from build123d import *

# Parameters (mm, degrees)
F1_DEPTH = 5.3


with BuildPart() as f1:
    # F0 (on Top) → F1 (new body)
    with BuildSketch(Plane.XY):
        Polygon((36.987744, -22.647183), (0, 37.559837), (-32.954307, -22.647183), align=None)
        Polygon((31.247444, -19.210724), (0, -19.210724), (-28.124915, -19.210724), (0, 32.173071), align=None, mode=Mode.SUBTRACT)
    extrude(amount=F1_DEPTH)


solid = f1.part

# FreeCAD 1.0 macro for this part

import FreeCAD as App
import Part
import Sketcher
from FreeCAD import Vector
Q = App.Units.Quantity


def add_polygon(sketch, points):
    """Adds a closed chain of lines whose ends are joined by coincident constraints."""
    first, n = sketch.GeometryCount, len(points)
    for a, b in zip(points, points[1:] + points[:1]):
        sketch.addGeometry(Part.LineSegment(App.Vector(*a, 0), App.Vector(*b, 0)), False)
    for i in range(n):
        sketch.addConstraint(Sketcher.Constraint("Coincident", first + i, 2, first + (i + 1) % n, 1))

doc = App.newDocument("Part")
body = doc.addObject("PartDesign::Body", "Body")

sketch1 = doc.addObject("Sketcher::SketchObject", "Sketch")
body.addObject(sketch1)
sketch1.AttachmentSupport = (doc.XY_Plane, [""])
sketch1.MapMode = "FlatFace"
add_polygon(sketch1, [(37, -23), (0, 38), (-33, -23)])
add_polygon(sketch1, [(0, 32), (31, -19), (-28, -19)])
sketch1.addConstraint([
    Sketcher.Constraint("Horizontal", 2),
    Sketcher.Constraint("Horizontal", 4),
    Sketcher.Constraint("PointOnObject", 0, 2, -2),
    Sketcher.Constraint("PointOnObject", 5, 2, -2),
    Sketcher.Constraint("Parallel", 1, 5),
    Sketcher.Constraint("DistanceX", 2, 1, 2, 2, Q("69.942051 mm")),
    Sketcher.Constraint("DistanceX", 4, 2, 4, 1, Q("59.372359 mm")),
    Sketcher.Constraint("DistanceX", 3, 2, 2, 2, Q("5.7403 mm")),
    Sketcher.Constraint("Distance", 0, Q("70.661011 mm")),
    Sketcher.Constraint("Distance", 1, Q("68.63579 mm")),
    Sketcher.Constraint("DistanceY", -1, 1, 5, 2, Q("32.173071 mm")),
    Sketcher.Constraint("DistanceY", 2, 2, 3, 2, Q("3.436459 mm")),
])
pad1 = doc.addObject("PartDesign::Pad", "Pad")
body.addObject(pad1)
pad1.Profile = sketch1
pad1.Length = 5.3

doc.recompute()
